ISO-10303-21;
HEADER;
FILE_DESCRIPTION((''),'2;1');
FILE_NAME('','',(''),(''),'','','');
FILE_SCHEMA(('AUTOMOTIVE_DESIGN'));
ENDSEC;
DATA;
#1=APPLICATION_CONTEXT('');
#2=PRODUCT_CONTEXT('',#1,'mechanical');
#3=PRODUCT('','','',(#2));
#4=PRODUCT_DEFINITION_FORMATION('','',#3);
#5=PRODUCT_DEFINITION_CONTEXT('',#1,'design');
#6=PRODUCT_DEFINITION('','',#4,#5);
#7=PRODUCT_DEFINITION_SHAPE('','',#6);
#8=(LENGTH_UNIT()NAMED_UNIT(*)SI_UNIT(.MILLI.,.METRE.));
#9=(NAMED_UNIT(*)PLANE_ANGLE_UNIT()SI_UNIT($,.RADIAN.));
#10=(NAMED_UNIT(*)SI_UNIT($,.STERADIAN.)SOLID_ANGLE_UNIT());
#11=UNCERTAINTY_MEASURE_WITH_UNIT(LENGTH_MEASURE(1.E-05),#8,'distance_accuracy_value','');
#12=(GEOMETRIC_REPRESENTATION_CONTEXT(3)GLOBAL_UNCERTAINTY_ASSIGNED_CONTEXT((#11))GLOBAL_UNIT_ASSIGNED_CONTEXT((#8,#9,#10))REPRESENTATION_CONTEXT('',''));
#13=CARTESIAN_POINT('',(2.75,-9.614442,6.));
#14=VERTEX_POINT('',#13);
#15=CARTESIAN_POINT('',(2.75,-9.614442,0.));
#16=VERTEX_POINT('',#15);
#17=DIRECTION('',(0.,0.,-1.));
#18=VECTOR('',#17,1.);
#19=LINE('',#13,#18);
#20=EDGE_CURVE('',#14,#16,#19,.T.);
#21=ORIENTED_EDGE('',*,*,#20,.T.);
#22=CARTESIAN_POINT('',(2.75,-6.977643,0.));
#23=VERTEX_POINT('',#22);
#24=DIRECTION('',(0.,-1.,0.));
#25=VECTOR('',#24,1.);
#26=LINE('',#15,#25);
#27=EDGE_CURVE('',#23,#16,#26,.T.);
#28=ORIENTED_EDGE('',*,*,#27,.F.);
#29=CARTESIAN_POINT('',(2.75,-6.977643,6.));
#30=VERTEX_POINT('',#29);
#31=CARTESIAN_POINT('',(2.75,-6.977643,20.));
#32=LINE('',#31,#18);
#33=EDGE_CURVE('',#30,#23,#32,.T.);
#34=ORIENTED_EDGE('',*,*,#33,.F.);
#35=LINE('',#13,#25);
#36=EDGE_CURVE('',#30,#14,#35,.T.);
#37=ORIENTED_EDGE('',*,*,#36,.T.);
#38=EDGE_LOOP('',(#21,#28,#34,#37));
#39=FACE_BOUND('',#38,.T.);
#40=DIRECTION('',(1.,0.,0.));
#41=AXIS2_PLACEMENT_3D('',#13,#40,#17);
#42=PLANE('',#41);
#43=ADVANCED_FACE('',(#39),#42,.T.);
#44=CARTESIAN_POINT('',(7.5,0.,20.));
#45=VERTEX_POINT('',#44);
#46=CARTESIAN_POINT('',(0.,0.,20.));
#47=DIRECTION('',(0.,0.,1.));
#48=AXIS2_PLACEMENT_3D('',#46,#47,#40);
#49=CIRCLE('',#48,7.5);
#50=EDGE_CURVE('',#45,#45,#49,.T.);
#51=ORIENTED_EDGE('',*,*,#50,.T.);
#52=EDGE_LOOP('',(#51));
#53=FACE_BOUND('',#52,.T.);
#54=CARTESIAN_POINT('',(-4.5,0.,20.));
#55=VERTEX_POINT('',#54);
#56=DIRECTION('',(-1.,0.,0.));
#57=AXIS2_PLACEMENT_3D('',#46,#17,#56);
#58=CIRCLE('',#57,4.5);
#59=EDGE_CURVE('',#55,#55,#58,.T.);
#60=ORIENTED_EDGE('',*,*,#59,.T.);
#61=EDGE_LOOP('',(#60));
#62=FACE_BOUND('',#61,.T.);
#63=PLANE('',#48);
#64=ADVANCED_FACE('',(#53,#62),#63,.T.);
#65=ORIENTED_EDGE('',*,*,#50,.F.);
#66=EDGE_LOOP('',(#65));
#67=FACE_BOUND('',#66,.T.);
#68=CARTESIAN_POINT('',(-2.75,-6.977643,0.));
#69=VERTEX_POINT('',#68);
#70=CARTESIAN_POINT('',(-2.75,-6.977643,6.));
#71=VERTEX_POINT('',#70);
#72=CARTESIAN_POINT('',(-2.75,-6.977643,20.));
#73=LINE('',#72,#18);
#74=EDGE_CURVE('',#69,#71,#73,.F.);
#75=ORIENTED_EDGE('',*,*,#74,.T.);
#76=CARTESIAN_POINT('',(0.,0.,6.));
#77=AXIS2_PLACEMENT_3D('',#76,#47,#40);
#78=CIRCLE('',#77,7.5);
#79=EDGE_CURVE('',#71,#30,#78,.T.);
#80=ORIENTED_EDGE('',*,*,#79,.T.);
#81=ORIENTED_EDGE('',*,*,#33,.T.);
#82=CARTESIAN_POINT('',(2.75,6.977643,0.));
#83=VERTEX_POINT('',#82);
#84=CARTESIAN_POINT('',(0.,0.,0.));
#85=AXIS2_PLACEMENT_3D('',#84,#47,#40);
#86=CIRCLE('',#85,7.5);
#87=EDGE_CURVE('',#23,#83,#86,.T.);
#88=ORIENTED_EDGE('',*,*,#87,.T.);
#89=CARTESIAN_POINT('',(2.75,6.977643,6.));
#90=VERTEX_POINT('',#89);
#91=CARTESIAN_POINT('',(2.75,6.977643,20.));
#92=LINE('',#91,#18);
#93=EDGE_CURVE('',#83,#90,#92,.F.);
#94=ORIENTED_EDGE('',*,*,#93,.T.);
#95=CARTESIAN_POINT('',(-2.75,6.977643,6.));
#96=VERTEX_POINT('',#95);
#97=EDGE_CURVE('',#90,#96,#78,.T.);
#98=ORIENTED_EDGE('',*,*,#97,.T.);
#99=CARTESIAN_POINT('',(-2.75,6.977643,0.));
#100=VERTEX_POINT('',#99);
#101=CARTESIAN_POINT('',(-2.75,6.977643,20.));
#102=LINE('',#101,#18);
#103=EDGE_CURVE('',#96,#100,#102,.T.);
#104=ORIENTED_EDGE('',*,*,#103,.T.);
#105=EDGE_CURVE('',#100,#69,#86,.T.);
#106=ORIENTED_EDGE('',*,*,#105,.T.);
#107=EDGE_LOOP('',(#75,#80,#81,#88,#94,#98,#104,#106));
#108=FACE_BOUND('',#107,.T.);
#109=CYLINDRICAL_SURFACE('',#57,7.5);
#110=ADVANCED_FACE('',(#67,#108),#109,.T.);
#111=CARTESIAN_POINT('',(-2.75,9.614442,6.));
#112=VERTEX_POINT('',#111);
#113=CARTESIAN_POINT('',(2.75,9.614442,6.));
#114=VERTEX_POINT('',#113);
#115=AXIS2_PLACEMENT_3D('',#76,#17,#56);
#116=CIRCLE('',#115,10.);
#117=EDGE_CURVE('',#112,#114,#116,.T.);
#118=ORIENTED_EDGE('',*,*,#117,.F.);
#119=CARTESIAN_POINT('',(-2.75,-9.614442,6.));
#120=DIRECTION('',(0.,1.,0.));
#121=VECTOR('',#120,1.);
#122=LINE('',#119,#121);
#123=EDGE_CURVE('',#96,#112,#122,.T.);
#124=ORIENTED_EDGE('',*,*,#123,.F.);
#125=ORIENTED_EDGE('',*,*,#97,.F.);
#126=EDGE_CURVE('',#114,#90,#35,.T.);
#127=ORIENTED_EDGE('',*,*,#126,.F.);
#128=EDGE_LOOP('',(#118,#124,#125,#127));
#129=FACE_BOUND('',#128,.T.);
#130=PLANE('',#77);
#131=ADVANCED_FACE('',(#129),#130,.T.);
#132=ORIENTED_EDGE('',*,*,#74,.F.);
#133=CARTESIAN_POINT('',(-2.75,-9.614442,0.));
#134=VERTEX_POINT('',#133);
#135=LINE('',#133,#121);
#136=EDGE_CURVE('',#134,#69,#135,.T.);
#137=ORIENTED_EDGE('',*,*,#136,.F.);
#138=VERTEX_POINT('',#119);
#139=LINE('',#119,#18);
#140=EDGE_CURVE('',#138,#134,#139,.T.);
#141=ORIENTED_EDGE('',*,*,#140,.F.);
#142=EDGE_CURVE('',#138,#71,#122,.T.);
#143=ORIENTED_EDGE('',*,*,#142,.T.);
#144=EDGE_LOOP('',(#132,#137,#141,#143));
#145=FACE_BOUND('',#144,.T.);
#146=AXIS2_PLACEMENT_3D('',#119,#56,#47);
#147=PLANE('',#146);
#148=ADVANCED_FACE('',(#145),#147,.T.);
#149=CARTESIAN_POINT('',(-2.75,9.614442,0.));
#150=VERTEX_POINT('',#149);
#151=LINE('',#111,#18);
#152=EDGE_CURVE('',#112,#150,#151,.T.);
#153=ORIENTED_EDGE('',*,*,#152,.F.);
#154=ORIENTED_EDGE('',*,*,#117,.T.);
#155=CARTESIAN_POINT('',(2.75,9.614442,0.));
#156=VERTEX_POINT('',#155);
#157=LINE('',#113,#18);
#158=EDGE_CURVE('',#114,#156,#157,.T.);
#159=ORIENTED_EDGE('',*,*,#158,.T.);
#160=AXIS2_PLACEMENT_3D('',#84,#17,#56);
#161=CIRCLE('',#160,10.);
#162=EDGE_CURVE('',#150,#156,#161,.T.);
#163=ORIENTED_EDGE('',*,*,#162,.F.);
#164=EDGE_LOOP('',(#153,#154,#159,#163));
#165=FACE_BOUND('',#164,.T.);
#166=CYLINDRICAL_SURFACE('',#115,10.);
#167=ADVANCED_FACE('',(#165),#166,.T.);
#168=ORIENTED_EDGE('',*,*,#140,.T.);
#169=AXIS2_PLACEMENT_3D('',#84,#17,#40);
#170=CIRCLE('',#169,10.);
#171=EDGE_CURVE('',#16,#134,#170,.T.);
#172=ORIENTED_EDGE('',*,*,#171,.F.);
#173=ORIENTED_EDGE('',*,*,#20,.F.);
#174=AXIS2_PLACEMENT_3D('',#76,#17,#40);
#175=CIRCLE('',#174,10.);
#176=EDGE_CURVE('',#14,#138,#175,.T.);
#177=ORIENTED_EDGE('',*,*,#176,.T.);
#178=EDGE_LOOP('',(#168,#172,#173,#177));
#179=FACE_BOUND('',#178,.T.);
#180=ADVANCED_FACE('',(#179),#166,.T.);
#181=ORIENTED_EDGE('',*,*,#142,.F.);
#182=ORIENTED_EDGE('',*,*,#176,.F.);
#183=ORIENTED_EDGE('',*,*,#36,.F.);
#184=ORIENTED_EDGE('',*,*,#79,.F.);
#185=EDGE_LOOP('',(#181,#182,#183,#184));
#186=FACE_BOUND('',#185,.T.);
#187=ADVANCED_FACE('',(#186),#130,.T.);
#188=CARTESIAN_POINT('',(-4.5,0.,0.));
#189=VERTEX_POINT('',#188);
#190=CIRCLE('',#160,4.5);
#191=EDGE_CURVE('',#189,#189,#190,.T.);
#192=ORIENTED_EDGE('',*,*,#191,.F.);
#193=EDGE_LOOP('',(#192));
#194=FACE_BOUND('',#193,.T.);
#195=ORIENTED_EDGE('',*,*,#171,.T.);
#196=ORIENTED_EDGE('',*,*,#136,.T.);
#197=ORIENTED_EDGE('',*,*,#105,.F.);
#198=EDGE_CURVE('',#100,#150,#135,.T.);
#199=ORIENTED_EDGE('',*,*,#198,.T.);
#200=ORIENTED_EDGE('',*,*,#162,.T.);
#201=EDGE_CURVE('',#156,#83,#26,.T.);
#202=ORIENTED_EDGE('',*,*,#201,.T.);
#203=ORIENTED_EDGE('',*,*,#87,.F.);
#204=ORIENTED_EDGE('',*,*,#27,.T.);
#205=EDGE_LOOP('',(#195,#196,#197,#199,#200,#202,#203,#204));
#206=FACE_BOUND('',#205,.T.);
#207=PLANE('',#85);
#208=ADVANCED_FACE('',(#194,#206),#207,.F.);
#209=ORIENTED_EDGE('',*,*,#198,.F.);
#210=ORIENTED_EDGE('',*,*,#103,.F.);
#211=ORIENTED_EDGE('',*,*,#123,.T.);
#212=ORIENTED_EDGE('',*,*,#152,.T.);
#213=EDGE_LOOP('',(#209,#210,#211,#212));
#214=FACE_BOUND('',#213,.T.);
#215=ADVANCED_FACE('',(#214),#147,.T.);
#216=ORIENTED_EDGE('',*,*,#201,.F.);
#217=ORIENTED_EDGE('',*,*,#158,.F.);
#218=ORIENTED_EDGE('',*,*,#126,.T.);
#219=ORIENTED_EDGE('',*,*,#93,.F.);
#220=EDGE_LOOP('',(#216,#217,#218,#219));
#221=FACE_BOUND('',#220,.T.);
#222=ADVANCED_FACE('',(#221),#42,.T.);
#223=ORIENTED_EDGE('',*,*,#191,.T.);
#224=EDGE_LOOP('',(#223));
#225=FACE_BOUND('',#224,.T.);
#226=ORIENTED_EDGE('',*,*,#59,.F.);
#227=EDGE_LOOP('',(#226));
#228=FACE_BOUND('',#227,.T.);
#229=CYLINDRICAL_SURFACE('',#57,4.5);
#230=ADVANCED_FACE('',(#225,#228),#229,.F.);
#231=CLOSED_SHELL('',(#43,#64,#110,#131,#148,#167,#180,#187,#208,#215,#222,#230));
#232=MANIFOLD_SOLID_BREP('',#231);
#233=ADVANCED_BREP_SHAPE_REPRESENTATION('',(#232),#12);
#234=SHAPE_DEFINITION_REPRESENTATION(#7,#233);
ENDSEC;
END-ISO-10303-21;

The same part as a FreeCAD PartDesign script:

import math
import FreeCAD as App
import Part
import Sketcher

doc = App.newDocument("Part")
body = doc.addObject("PartDesign::Body", "Body")

# Sketch on XY plane
sketch1 = body.newObject("Sketcher::SketchObject", "Sketch")
sketch1.AttachmentSupport = (doc.getObject("XY_Plane"), [""])
sketch1.MapMode = "FlatFace"
sketch1.addGeometry(Part.Circle(App.Vector(0, 0, 0), App.Vector(0, 0, 1), 8), False)
sketch1.addConstraint([
    Sketcher.Constraint("Coincident", 0, 3, -1, 1),
    Sketcher.Constraint("Diameter", 0, 15.0),
])
pad1 = body.newObject("PartDesign::Pad", "Pad")
pad1.Profile = sketch1
pad1.Length = 20

# Sketch on XY plane
sketch2 = body.newObject("Sketcher::SketchObject", "Sketch001")
sketch2.AttachmentSupport = (doc.getObject("XY_Plane"), [""])
sketch2.MapMode = "FlatFace"
sketch2.addGeometry([
    Part.LineSegment(App.Vector(-3, -10, 0), App.Vector(-3, 10, 0)),
    Part.ArcOfCircle(Part.Circle(App.Vector(0, 0, 0), App.Vector(0, 0, 1), 10), math.radians(74), math.radians(106)),
    Part.LineSegment(App.Vector(3, 10, 0), App.Vector(3, -10, 0)),
    Part.ArcOfCircle(Part.Circle(App.Vector(0, 0, 0), App.Vector(0, 0, 1), 10), math.radians(-106), math.radians(-74)),
], False)
sketch2.addConstraint([
    Sketcher.Constraint("Coincident", 0, 2, 1, 2),
    Sketcher.Constraint("Coincident", 1, 1, 2, 1),
    Sketcher.Constraint("Coincident", 2, 2, 3, 2),
    Sketcher.Constraint("Coincident", 3, 1, 0, 1),
    Sketcher.Constraint("Vertical", 0),
    Sketcher.Constraint("Vertical", 2),
    Sketcher.Constraint("Coincident", 1, 3, -1, 1),
    Sketcher.Constraint("Coincident", 3, 3, -1, 1),
    Sketcher.Constraint("Equal", 1, 3),
    Sketcher.Constraint("Horizontal", 0, 2, 1, 1),
    Sketcher.Constraint("Radius", 1, 10.0),
    Sketcher.Constraint("DistanceX", 0, 2, 1, 1, 5.5),
])
pad2 = body.newObject("PartDesign::Pad", "Pad001")
pad2.Profile = sketch2
pad2.Length = 6

# Sketch on XY plane
sketch3 = body.newObject("Sketcher::SketchObject", "Sketch002")
sketch3.AttachmentSupport = (doc.getObject("XY_Plane"), [""])
sketch3.MapMode = "FlatFace"
sketch3.addGeometry(Part.Circle(App.Vector(0, 0, 0), App.Vector(0, 0, 1), 4.5), False)
sketch3.addConstraint([
    Sketcher.Constraint("Coincident", 0, 3, -1, 1),
    Sketcher.Constraint("Diameter", 0, 9.0),
])
pocket1 = body.newObject("PartDesign::Pocket", "Pocket")
pocket1.Profile = sketch3
pocket1.Type = "ThroughAll"
pocket1.Reversed = True

doc.recompute()
